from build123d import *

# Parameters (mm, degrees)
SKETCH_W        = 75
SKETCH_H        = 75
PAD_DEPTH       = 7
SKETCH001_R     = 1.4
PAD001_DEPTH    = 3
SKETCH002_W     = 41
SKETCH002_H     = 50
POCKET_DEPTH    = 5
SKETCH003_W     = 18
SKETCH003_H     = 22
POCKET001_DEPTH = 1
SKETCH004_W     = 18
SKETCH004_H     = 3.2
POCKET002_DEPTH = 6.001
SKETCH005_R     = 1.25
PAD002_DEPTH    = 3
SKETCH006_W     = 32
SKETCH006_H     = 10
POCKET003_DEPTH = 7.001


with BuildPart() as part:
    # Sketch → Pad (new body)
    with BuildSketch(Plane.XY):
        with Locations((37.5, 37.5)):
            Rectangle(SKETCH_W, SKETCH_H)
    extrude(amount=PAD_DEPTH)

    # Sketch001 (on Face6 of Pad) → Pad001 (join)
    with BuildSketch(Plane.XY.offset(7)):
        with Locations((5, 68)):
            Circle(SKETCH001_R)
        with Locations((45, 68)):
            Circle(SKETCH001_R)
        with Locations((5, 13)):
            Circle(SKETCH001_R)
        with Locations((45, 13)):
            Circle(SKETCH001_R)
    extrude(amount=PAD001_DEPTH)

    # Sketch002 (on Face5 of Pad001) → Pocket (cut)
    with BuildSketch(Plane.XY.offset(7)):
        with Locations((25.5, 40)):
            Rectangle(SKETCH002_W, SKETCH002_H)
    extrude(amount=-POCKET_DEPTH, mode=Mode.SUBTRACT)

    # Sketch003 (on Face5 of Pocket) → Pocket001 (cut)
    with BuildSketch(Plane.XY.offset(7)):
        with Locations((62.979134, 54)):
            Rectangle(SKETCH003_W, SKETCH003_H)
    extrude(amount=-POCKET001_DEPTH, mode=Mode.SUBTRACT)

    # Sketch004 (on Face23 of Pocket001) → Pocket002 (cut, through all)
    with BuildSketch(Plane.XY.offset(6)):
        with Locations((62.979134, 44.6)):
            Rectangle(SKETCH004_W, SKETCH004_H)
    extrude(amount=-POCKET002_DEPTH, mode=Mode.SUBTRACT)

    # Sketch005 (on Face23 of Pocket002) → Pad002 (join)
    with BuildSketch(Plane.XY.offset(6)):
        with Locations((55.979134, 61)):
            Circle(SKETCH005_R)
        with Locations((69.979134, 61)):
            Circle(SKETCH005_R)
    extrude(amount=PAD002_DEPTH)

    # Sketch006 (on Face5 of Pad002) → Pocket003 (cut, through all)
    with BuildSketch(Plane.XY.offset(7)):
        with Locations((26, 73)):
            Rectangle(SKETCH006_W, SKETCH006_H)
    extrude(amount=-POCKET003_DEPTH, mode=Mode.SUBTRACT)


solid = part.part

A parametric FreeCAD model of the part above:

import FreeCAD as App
import Part
import Sketcher
from FreeCAD import Vector
Q = App.Units.Quantity


def add_polygon(sketch, points):
    """Adds a closed chain of lines whose ends are joined by coincident constraints."""
    first, n = sketch.GeometryCount, len(points)
    for a, b in zip(points, points[1:] + points[:1]):
        sketch.addGeometry(Part.LineSegment(App.Vector(*a, 0), App.Vector(*b, 0)), False)
    for i in range(n):
        sketch.addConstraint(Sketcher.Constraint("Coincident", first + i, 2, first + (i + 1) % n, 1))

doc = App.newDocument("Part")
body = doc.addObject("PartDesign::Body", "Body")

sketch1 = body.newObject("Sketcher::SketchObject", "Sketch")
sketch1.AttachmentSupport = (doc.getObject("XY_Plane"), [""])
sketch1.MapMode = "FlatFace"
add_polygon(sketch1, [(0, 75), (0, 0), (75, 0), (75, 75)])
sketch1.addConstraint(Sketcher.Constraint("Vertical", 0))
sketch1.addConstraint(Sketcher.Constraint("Horizontal", 1))
sketch1.addConstraint(Sketcher.Constraint("Vertical", 2))
sketch1.addConstraint(Sketcher.Constraint("Horizontal", 3))
sketch1.addConstraint(Sketcher.Constraint("Coincident", 0, 2, -1, 1))
sketch1.addConstraint(Sketcher.Constraint("Equal", 3, 0))
sketch1.addConstraint(Sketcher.Constraint("DistanceX", 1, 1, 1, 2, Q("75 mm")))
pad1 = body.newObject("PartDesign::Pad", "Pad")
pad1.Profile = sketch1
pad1.Length = 7

sketch2 = body.newObject("Sketcher::SketchObject", "Sketch001")
sketch2.AttachmentSupport = (doc.getObject("XY_Plane"), [""])
sketch2.MapMode = "FlatFace"
sketch2.AttachmentOffset = App.Placement(Vector(0, 0, 7), App.Rotation())
sketch2.addGeometry(Part.Circle(Vector(5, 68, 0), Vector(0, 0, 1), 1.4), False)
sketch2.addGeometry(Part.Circle(Vector(45, 68, 0), Vector(0, 0, 1), 1.4), False)
sketch2.addGeometry(Part.Circle(Vector(5, 13, 0), Vector(0, 0, 1), 1.4), False)
sketch2.addGeometry(Part.Circle(Vector(45, 13, 0), Vector(0, 0, 1), 1.4), False)
sketch2.addConstraint(Sketcher.Constraint("Equal", 0, 1))
sketch2.addConstraint(Sketcher.Constraint("Equal", 1, 2))
sketch2.addConstraint(Sketcher.Constraint("Equal", 2, 3))
sketch2.addConstraint(Sketcher.Constraint("Horizontal", 0, 3, 1, 3))
sketch2.addConstraint(Sketcher.Constraint("Horizontal", 2, 3, 3, 3))
sketch2.addConstraint(Sketcher.Constraint("Vertical", 0, 3, 2, 3))
sketch2.addConstraint(Sketcher.Constraint("Vertical", 1, 3, 3, 3))
sketch2.addConstraint(Sketcher.Constraint("Diameter", 0, Q("2.8 mm")))
sketch2.addConstraint(Sketcher.Constraint("DistanceX", -1, 1, 0, 3, Q("5 mm")))
sketch2.addConstraint(Sketcher.Constraint("DistanceY", -1, 1, 0, 3, Q("68 mm")))
sketch2.addConstraint(Sketcher.Constraint("DistanceX", -1, 1, 1, 3, Q("45 mm")))
sketch2.addConstraint(Sketcher.Constraint("DistanceY", -1, 1, 2, 3, Q("13 mm")))
pad2 = body.newObject("PartDesign::Pad", "Pad001")
pad2.Profile = sketch2
pad2.Length = 3

sketch3 = body.newObject("Sketcher::SketchObject", "Sketch002")
sketch3.AttachmentSupport = (doc.getObject("XY_Plane"), [""])
sketch3.MapMode = "FlatFace"
sketch3.AttachmentOffset = App.Placement(Vector(0, 0, 7), App.Rotation())
add_polygon(sketch3, [(5, 65), (5, 15), (46, 15), (46, 65)])
sketch3.addConstraint(Sketcher.Constraint("Vertical", 0))
sketch3.addConstraint(Sketcher.Constraint("Horizontal", 1))
sketch3.addConstraint(Sketcher.Constraint("Vertical", 2))
sketch3.addConstraint(Sketcher.Constraint("Horizontal", 3))
sketch3.addConstraint(Sketcher.Constraint("DistanceX", 1, 1, 1, 2, Q("41 mm")))
sketch3.addConstraint(Sketcher.Constraint("DistanceY", 0, 2, 0, 1, Q("50 mm")))
sketch3.addConstraint(Sketcher.Constraint("DistanceX", -1, 1, 0, 2, Q("5 mm")))
sketch3.addConstraint(Sketcher.Constraint("DistanceY", -1, 1, 0, 2, Q("15 mm")))
pocket1 = body.newObject("PartDesign::Pocket", "Pocket")
pocket1.Profile = sketch3
pocket1.Length = 5

sketch4 = body.newObject("Sketcher::SketchObject", "Sketch003")
sketch4.AttachmentSupport = (doc.getObject("XY_Plane"), [""])
sketch4.MapMode = "FlatFace"
sketch4.AttachmentOffset = App.Placement(Vector(0, 0, 7), App.Rotation())
add_polygon(sketch4, [(54, 65), (54, 43), (72, 43), (72, 65)])
sketch4.addConstraint(Sketcher.Constraint("Vertical", 0))
sketch4.addConstraint(Sketcher.Constraint("Horizontal", 1))
sketch4.addConstraint(Sketcher.Constraint("Vertical", 2))
sketch4.addConstraint(Sketcher.Constraint("Horizontal", 3))
sketch4.addConstraint(Sketcher.Constraint("DistanceX", 1, 1, 1, 2, Q("18 mm")))
sketch4.addConstraint(Sketcher.Constraint("DistanceY", 0, 2, 0, 1, Q("22 mm")))
sketch4.addConstraint(Sketcher.Constraint("DistanceY", -1, 1, 0, 2, Q("43 mm")))
sketch4.addConstraint(Sketcher.Constraint("DistanceX", -1, 1, 0, 2, Q("53.979134 mm")))
pocket2 = body.newObject("PartDesign::Pocket", "Pocket001")
pocket2.Profile = sketch4
pocket2.Length = 1

sketch5 = body.newObject("Sketcher::SketchObject", "Sketch004")
sketch5.AttachmentSupport = (doc.getObject("XY_Plane"), [""])
sketch5.MapMode = "FlatFace"
sketch5.AttachmentOffset = App.Placement(Vector(0, 0, 6), App.Rotation())
add_polygon(sketch5, [(54, 46.2), (54, 43), (72, 43), (72, 46.2)])
sketch5.addConstraint(Sketcher.Constraint("Vertical", 0))
sketch5.addConstraint(Sketcher.Constraint("Horizontal", 1))
sketch5.addConstraint(Sketcher.Constraint("Vertical", 2))
sketch5.addConstraint(Sketcher.Constraint("Horizontal", 3))
sketch5.addConstraint(Sketcher.Constraint("DistanceX", 1, 1, 1, 2, Q("18 mm")))
sketch5.addConstraint(Sketcher.Constraint("DistanceY", 0, 2, 0, 1, Q("3.2 mm")))
sketch5.addConstraint(Sketcher.Constraint("DistanceY", -1, 1, 0, 2, Q("43 mm")))
sketch5.addConstraint(Sketcher.Constraint("DistanceX", -1, 1, 0, 2, Q("53.979134 mm")))
pocket3 = body.newObject("PartDesign::Pocket", "Pocket002")
pocket3.Profile = sketch5
pocket3.Type = "ThroughAll"

sketch6 = body.newObject("Sketcher::SketchObject", "Sketch005")
sketch6.AttachmentSupport = (doc.getObject("XY_Plane"), [""])
sketch6.MapMode = "FlatFace"
sketch6.AttachmentOffset = App.Placement(Vector(0, 0, 6), App.Rotation())
sketch6.addGeometry(Part.Circle(Vector(56, 61, 0), Vector(0, 0, 1), 1.2), False)
sketch6.addGeometry(Part.Circle(Vector(70, 61, 0), Vector(0, 0, 1), 1.2), False)
sketch6.addConstraint(Sketcher.Constraint("Equal", 0, 1))
sketch6.addConstraint(Sketcher.Constraint("Horizontal", 0, 3, 1, 3))
sketch6.addConstraint(Sketcher.Constraint("Diameter", 0, Q("2.5 mm")))
sketch6.addConstraint(Sketcher.Constraint("DistanceY", -1, 1, 0, 3, Q("61 mm")))
sketch6.addConstraint(Sketcher.Constraint("DistanceX", 0, 3, 1, 3, Q("14 mm")))
sketch6.addConstraint(Sketcher.Constraint("DistanceX", -1, 1, 0, 3, Q("55.979134 mm")))
pad3 = body.newObject("PartDesign::Pad", "Pad002")
pad3.Profile = sketch6
pad3.Length = 3

sketch7 = body.newObject("Sketcher::SketchObject", "Sketch006")
sketch7.AttachmentSupport = (doc.getObject("XY_Plane"), [""])
sketch7.MapMode = "FlatFace"
sketch7.AttachmentOffset = App.Placement(Vector(0, 0, 7), App.Rotation())
add_polygon(sketch7, [(10, 78), (10, 68), (42, 68), (42, 78)])
sketch7.addConstraint(Sketcher.Constraint("Vertical", 0))
sketch7.addConstraint(Sketcher.Constraint("Horizontal", 1))
sketch7.addConstraint(Sketcher.Constraint("Vertical", 2))
sketch7.addConstraint(Sketcher.Constraint("Horizontal", 3))
sketch7.addConstraint(Sketcher.Constraint("DistanceX", 1, 1, 1, 2, Q("32 mm")))
sketch7.addConstraint(Sketcher.Constraint("DistanceY", 0, 2, 0, 1, Q("10 mm")))
sketch7.addConstraint(Sketcher.Constraint("DistanceX", -1, 1, 0, 2, Q("10 mm")))
sketch7.addConstraint(Sketcher.Constraint("DistanceY", -1, 1, 0, 2, Q("68 mm")))
pocket4 = body.newObject("PartDesign::Pocket", "Pocket003")
pocket4.Profile = sketch7
pocket4.Type = "ThroughAll"

doc.recompute()
